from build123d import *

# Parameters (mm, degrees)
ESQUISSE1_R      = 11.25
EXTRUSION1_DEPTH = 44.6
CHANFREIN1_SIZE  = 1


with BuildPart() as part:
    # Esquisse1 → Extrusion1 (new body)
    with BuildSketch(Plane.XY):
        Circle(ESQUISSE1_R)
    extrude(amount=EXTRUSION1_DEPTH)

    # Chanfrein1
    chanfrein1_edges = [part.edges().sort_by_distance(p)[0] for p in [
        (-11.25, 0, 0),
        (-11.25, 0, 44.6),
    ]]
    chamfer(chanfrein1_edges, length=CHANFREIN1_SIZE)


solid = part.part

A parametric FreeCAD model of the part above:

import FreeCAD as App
import Part
import Sketcher

V = App.Vector


def edges_at(feature, points):
    """Names of the edges that pass closest to the given points."""
    edges = feature.Shape.Edges
    near = lambda p: min(range(len(edges)), key=lambda i: edges[i].distToShape(Part.Vertex(*p))[0])
    return sorted({f"Edge{near(p) + 1}" for p in points})

doc = App.newDocument("Part")
body = doc.addObject("PartDesign::Body", "Body")

# Sketch on XY plane
sketch1 = body.newObject("Sketcher::SketchObject", "Sketch")
sketch1.AttachmentSupport = (doc.getObject("XY_Plane"), [""])
sketch1.MapMode = "FlatFace"
sketch1.addGeometry(Part.Circle(V(0, 0, 0), V(0, 0, 1), 11.25), False)
sketch1.addConstraint([
    Sketcher.Constraint("Coincident", 0, 3, -1, 1),
    Sketcher.Constraint("Diameter", 0, 22.5),
])
pad1 = body.newObject("PartDesign::Pad", "Pad")
pad1.Profile = sketch1
pad1.Length = 44.6
doc.recompute()

chamfer = body.newObject("PartDesign::Chamfer", "Chamfer")
chamfer.Base = (pad1, edges_at(pad1, [(-11.25, 0, 0), (-11.25, 0, 44.6)]))
chamfer.Size = 1

doc.recompute()
